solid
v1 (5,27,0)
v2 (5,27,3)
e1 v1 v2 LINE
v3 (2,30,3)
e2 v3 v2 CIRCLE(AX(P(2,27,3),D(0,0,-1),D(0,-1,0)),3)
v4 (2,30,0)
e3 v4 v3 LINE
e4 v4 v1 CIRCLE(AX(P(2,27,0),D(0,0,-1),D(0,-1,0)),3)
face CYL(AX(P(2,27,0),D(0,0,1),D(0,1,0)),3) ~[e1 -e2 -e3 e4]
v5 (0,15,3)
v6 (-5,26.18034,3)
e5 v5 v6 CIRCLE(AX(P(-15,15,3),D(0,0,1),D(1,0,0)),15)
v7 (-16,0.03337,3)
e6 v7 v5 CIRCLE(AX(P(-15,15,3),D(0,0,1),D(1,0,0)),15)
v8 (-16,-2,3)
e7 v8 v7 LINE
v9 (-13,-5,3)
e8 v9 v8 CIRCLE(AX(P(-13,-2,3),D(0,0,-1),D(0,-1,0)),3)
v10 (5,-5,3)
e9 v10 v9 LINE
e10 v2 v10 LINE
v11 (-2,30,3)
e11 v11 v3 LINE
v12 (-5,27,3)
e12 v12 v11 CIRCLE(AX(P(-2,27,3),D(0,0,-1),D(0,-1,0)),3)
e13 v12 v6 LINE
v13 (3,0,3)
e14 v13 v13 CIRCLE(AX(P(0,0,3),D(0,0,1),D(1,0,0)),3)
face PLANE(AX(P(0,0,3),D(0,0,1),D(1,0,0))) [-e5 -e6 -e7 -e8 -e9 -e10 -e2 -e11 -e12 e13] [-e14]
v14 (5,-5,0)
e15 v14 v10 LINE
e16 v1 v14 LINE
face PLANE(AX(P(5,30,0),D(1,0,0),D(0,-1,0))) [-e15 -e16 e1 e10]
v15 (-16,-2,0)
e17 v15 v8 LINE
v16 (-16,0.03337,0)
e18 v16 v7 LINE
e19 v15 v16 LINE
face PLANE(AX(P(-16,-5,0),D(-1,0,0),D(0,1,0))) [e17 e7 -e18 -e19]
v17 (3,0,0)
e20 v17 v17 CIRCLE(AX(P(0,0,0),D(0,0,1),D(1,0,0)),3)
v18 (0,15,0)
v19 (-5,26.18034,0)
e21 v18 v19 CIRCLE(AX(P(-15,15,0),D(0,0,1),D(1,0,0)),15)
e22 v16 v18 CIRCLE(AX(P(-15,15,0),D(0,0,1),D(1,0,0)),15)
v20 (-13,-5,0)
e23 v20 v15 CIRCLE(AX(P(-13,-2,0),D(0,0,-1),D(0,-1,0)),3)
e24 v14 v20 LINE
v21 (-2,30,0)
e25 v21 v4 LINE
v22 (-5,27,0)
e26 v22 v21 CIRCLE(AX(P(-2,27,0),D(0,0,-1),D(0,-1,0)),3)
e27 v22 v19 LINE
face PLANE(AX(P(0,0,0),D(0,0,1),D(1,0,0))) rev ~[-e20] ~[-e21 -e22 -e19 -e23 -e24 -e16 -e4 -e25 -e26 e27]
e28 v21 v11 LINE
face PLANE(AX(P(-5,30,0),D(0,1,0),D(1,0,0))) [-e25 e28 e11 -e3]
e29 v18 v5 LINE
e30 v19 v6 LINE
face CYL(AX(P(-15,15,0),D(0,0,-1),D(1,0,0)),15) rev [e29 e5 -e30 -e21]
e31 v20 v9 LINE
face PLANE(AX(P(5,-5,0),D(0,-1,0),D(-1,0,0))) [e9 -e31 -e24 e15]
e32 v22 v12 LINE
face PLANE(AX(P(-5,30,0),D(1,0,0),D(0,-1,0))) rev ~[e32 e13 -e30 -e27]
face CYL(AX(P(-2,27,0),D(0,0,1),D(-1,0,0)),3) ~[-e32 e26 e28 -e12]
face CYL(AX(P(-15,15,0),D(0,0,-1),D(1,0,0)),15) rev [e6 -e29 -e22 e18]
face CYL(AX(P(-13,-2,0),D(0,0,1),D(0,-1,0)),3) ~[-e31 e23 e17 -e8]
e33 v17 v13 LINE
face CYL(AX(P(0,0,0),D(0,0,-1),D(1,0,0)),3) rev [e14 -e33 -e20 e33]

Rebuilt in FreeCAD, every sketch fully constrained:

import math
import FreeCAD as App
import Part
import Sketcher


def edges_at(feature, points):
    """Names of the edges that pass closest to the given points."""
    edges = feature.Shape.Edges
    near = lambda p: min(range(len(edges)), key=lambda i: edges[i].distToShape(Part.Vertex(*p))[0])
    return sorted({f"Edge{near(p) + 1}" for p in points})

doc = App.newDocument("Part")
body = doc.addObject("PartDesign::Body", "Body")

sketch1 = body.newObject("Sketcher::SketchObject", "Sketch")
sketch1.AttachmentSupport = (doc.getObject("XY_Plane"), [""])
sketch1.MapMode = "FlatFace"
sketch1.addGeometry([
    Part.LineSegment(App.Vector(-16, -5, 0), App.Vector(5, -5, 0)),
    Part.LineSegment(App.Vector(5, -5, 0), App.Vector(5, 30, 0)),
    Part.LineSegment(App.Vector(5, 30, 0), App.Vector(-5, 30, 0)),
    Part.LineSegment(App.Vector(-5, 30, 0), App.Vector(-5, 26.18034, 0)),
    Part.ArcOfCircle(Part.Circle(App.Vector(-15, 15, 0), App.Vector(0, 0, 1), 15), math.radians(-93.822554), math.radians(48.189685)),
    Part.LineSegment(App.Vector(-16, 0.03337, 0), App.Vector(-16, -5, 0)),
    Part.Circle(App.Vector(0, 0, 0), App.Vector(0, 0, 1), 3),
], False)
sketch1.addConstraint([
    Sketcher.Constraint("Coincident", 0, 2, 1, 1),
    Sketcher.Constraint("Coincident", 1, 2, 2, 1),
    Sketcher.Constraint("Coincident", 2, 2, 3, 1),
    Sketcher.Constraint("Coincident", 3, 2, 4, 2),
    Sketcher.Constraint("Coincident", 4, 1, 5, 1),
    Sketcher.Constraint("Coincident", 5, 2, 0, 1),
    Sketcher.Constraint("Horizontal", 0),
    Sketcher.Constraint("Vertical", 1),
    Sketcher.Constraint("Horizontal", 2),
    Sketcher.Constraint("Vertical", 3),
    Sketcher.Constraint("Vertical", 5),
    Sketcher.Constraint("Coincident", 6, 3, -1, 1),
    Sketcher.Constraint("Diameter", 6, 6.0),
    Sketcher.Constraint("Radius", 4, 15.0),
    Sketcher.Constraint("DistanceX", 0, 1, 0, 2, 21.0),
    Sketcher.Constraint("DistanceY", 1, 1, 1, 2, 35.0),
    Sketcher.Constraint("DistanceX", 4, 3, -1, 1, 15.0),
    Sketcher.Constraint("DistanceY", -1, 1, 4, 3, 15.0),
    Sketcher.Constraint("DistanceX", -1, 1, 0, 2, 5.0),
    Sketcher.Constraint("DistanceY", 0, 2, -1, 1, 5.0),
    Sketcher.Constraint("DistanceX", 2, 2, -1, 1, 5.0),
])
pad1 = body.newObject("PartDesign::Pad", "Pad")
pad1.Profile = sketch1
pad1.Length = 3
doc.recompute()

fillet = body.newObject("PartDesign::Fillet", "Fillet")
fillet.Base = (pad1, edges_at(pad1, [(-5, 30, 1.5), (5, 30, 1.5), (-16, -5, 1.5)]))
fillet.Radius = 3

doc.recompute()
